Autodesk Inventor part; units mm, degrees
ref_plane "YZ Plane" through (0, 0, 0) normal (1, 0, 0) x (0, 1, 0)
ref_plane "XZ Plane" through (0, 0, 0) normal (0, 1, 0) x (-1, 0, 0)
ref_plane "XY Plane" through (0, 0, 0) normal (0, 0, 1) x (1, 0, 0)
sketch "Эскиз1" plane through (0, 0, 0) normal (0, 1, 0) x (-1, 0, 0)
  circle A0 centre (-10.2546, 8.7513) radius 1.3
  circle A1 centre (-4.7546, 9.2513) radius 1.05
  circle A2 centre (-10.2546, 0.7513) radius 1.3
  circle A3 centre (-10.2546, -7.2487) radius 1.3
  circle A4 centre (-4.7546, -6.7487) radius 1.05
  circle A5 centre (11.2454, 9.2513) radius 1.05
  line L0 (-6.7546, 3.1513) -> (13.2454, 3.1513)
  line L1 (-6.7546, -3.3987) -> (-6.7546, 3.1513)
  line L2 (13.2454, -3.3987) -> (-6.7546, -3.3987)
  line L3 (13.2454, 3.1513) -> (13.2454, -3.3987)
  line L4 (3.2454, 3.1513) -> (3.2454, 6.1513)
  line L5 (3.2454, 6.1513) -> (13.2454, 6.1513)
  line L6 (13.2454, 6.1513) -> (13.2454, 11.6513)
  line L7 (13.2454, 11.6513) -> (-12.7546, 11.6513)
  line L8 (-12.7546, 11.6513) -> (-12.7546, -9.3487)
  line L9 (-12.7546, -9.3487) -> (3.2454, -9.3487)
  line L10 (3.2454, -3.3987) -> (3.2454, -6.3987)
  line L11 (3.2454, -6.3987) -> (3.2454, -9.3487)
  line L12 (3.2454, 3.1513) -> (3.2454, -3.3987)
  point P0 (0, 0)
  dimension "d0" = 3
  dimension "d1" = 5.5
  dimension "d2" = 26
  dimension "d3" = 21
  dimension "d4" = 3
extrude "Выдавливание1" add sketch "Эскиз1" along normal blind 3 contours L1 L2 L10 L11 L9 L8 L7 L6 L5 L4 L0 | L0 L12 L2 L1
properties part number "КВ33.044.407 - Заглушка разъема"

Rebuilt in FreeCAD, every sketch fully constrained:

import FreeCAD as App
import Part
import Sketcher


def add_polygon(sketch, points):
    """Adds a closed chain of lines whose ends are joined by coincident constraints."""
    first, n = sketch.GeometryCount, len(points)
    for a, b in zip(points, points[1:] + points[:1]):
        sketch.addGeometry(Part.LineSegment(App.Vector(*a, 0), App.Vector(*b, 0)), False)
    for i in range(n):
        sketch.addConstraint(Sketcher.Constraint("Coincident", first + i, 2, first + (i + 1) % n, 1))

doc = App.newDocument("Part")
body = doc.addObject("PartDesign::Body", "Body")

# Sketch on XZ plane
sketch1 = body.newObject("Sketcher::SketchObject", "Sketch")
sketch1.AttachmentSupport = (doc.getObject("XZ_Plane"), [""])
sketch1.MapMode = "FlatFace"
add_polygon(sketch1, [(-3.2454, 6.1513), (-13.2454, 6.1513), (-13.2454, 11.6513), (12.7546, 11.6513), (12.7546, -9.3487), (-3.2454, -9.3487)])  # lines 0-5
sketch1.addGeometry(Part.Circle(App.Vector(10.2546, -7.2487, 0), App.Vector(0, 0, 1), 1.3), False)  # 6
sketch1.addGeometry(Part.Circle(App.Vector(4.7546, -6.7487, 0), App.Vector(0, 0, 1), 1.05), False)  # 7
sketch1.addGeometry(Part.Circle(App.Vector(10.2546, 0.7513, 0), App.Vector(0, 0, 1), 1.3), False)  # 8
sketch1.addGeometry(Part.Circle(App.Vector(10.2546, 8.7513, 0), App.Vector(0, 0, 1), 1.3), False)  # 9
sketch1.addGeometry(Part.Circle(App.Vector(4.7546, 9.2513, 0), App.Vector(0, 0, 1), 1.05), False)  # 10
sketch1.addGeometry(Part.Circle(App.Vector(-11.2454, 9.2513, 0), App.Vector(0, 0, 1), 1.05), False)  # 11
sketch1.addConstraint(Sketcher.Constraint("Horizontal", 0))
sketch1.addConstraint(Sketcher.Constraint("Vertical", 1))
sketch1.addConstraint(Sketcher.Constraint("Horizontal", 2))
sketch1.addConstraint(Sketcher.Constraint("Vertical", 3))
sketch1.addConstraint(Sketcher.Constraint("Horizontal", 4))
sketch1.addConstraint(Sketcher.Constraint("Vertical", 5))
sketch1.addConstraint(Sketcher.Constraint("Equal", 6, 8))
sketch1.addConstraint(Sketcher.Constraint("Equal", 8, 9))
sketch1.addConstraint(Sketcher.Constraint("Equal", 7, 10))
sketch1.addConstraint(Sketcher.Constraint("Equal", 10, 11))
sketch1.addConstraint(Sketcher.Constraint("Horizontal", 10, 3, 11, 3))
sketch1.addConstraint(Sketcher.Constraint("Vertical", 6, 3, 8, 3))
sketch1.addConstraint(Sketcher.Constraint("Vertical", 8, 3, 9, 3))
sketch1.addConstraint(Sketcher.Constraint("Vertical", 7, 3, 10, 3))
sketch1.addConstraint(Sketcher.Constraint("DistanceX", 2, 1, 2, 2, 26.0))
sketch1.addConstraint(Sketcher.Constraint("DistanceY", 3, 2, 3, 1, 21.0))
sketch1.addConstraint(Sketcher.Constraint("DistanceY", 1, 1, 1, 2, 5.5))
sketch1.addConstraint(Sketcher.Constraint("Diameter", 6, 2.6))
sketch1.addConstraint(Sketcher.Constraint("Diameter", 7, 2.1))
sketch1.addConstraint(Sketcher.Constraint("DistanceX", 7, 3, 6, 3, 5.5))
sketch1.addConstraint(Sketcher.Constraint("DistanceX", 0, 2, 0, 1, 10.0))
sketch1.addConstraint(Sketcher.Constraint("DistanceY", 6, 3, 8, 3, 8.0))
sketch1.addConstraint(Sketcher.Constraint("DistanceY", 8, 3, 9, 3, 8.0))
sketch1.addConstraint(Sketcher.Constraint("DistanceY", 7, 3, 10, 3, 16.0))
sketch1.addConstraint(Sketcher.Constraint("DistanceX", 11, 3, 10, 3, 16.0))
sketch1.addConstraint(Sketcher.Constraint("DistanceX", 0, 2, 11, 3, 2.0))
sketch1.addConstraint(Sketcher.Constraint("DistanceY", 6, 3, 7, 3, 0.5))
sketch1.addConstraint(Sketcher.Constraint("DistanceY", 0, 2, 11, 3, 3.1))
sketch1.addConstraint(Sketcher.Constraint("DistanceX", -1, 1, 6, 3, 10.2546))
sketch1.addConstraint(Sketcher.Constraint("DistanceY", 6, 3, -1, 1, 7.2487))
pad1 = body.newObject("PartDesign::Pad", "Pad")
pad1.Profile = sketch1
pad1.Length = 3
pad1.Reversed = True

doc.recompute()
